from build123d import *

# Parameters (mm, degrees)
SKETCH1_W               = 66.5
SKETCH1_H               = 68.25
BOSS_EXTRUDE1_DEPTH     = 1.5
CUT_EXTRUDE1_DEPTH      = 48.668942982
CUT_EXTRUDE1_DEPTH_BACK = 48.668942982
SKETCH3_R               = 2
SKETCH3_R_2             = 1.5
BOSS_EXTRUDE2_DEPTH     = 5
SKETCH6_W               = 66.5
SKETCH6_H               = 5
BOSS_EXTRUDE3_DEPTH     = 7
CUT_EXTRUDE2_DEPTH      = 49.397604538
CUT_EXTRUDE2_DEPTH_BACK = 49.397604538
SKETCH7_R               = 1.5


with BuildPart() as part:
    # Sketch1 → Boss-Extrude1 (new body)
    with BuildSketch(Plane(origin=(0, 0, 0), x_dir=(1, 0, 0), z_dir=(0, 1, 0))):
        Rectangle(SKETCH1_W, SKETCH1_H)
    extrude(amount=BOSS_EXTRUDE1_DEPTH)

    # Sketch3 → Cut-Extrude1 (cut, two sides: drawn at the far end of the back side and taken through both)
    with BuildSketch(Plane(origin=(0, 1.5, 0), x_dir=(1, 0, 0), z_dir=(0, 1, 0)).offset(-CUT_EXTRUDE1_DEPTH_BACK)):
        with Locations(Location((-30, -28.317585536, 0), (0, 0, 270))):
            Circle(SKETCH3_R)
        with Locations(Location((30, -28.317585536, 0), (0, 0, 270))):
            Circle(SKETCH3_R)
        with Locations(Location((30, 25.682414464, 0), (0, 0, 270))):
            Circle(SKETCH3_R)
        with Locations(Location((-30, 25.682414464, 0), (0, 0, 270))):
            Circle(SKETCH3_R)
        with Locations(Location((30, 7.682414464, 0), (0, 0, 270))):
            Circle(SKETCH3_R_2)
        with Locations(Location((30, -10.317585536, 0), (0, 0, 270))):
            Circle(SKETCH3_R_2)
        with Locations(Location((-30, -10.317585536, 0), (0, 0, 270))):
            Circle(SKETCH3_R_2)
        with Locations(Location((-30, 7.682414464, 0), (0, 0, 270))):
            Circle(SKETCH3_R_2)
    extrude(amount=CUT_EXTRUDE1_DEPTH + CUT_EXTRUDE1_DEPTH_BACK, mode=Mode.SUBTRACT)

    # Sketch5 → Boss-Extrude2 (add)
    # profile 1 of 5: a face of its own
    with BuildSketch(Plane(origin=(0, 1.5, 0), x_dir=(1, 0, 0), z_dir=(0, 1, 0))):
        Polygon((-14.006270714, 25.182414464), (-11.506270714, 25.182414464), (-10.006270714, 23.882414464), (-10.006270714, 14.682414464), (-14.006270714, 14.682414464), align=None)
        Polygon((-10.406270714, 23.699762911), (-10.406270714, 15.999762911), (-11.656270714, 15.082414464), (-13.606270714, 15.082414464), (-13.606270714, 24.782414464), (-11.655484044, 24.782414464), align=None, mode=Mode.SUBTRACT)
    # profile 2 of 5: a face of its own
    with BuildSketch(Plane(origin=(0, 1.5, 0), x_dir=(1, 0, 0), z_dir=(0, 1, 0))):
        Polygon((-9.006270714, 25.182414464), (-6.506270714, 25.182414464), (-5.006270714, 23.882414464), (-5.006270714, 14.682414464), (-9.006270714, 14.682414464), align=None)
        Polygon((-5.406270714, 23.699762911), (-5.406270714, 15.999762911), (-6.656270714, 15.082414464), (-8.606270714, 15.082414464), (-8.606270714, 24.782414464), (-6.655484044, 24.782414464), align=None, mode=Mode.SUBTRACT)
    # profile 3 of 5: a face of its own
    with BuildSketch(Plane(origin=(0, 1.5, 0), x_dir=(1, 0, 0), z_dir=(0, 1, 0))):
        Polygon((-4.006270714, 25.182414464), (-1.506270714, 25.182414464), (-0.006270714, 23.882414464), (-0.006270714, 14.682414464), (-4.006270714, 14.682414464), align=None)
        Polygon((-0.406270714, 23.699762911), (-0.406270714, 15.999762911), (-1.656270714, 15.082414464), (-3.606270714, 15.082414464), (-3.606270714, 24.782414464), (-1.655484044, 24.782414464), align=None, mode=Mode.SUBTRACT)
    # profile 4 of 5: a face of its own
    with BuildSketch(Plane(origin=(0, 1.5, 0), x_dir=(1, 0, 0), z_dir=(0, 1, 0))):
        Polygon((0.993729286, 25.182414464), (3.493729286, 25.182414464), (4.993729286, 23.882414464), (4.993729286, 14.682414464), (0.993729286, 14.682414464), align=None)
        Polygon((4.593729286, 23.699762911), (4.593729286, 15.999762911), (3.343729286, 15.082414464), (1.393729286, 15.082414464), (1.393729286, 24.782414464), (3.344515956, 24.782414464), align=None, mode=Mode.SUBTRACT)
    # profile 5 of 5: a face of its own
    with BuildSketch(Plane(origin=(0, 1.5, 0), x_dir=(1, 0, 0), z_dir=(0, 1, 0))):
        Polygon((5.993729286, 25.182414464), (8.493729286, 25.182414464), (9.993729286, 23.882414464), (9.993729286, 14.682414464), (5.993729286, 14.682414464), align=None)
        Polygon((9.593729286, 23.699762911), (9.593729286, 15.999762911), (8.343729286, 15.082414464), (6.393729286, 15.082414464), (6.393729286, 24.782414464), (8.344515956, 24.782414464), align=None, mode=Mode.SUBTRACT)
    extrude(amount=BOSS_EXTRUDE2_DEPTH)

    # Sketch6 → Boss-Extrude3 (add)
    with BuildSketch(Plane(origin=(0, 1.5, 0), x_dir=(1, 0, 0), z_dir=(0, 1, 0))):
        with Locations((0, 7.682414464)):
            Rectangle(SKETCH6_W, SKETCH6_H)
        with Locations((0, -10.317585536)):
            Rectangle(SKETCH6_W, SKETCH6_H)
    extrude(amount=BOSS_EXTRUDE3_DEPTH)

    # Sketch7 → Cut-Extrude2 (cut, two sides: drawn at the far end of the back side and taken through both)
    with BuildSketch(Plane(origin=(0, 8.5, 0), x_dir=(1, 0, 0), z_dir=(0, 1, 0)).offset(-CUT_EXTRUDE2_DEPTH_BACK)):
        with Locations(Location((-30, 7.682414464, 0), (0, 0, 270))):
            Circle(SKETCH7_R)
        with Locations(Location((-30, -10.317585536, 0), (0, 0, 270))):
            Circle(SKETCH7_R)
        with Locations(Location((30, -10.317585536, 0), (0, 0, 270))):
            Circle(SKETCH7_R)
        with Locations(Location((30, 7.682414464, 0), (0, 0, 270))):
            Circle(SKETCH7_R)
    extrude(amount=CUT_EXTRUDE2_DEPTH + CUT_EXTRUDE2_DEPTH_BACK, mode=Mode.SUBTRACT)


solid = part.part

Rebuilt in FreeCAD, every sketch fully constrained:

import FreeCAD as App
import Part
import Sketcher
Q = App.Units.Quantity


def add_polygon(sketch, points):
    """Adds a closed chain of lines whose ends are joined by coincident constraints."""
    first, n = sketch.GeometryCount, len(points)
    for a, b in zip(points, points[1:] + points[:1]):
        sketch.addGeometry(Part.LineSegment(App.Vector(*a, 0), App.Vector(*b, 0)), False)
    for i in range(n):
        sketch.addConstraint(Sketcher.Constraint("Coincident", first + i, 2, first + (i + 1) % n, 1))

doc = App.newDocument("Part")
body = doc.addObject("PartDesign::Body", "Body")

# Sketch on XZ plane
sketch1 = body.newObject("Sketcher::SketchObject", "Sketch")
sketch1.AttachmentSupport = (doc.getObject("XZ_Plane"), [""])
sketch1.MapMode = "FlatFace"
add_polygon(sketch1, [(-33, -34), (-33, 34), (33, 34), (33, -34)])  # lines 0-3
sketch1.addConstraint([
    Sketcher.Constraint("Vertical", 0),
    Sketcher.Constraint("Horizontal", 1),
    Sketcher.Constraint("Vertical", 2),
    Sketcher.Constraint("Horizontal", 3),
    Sketcher.Constraint("Symmetric", 0, 2, 2, 2, -1, 1),
    Sketcher.Constraint("DistanceX", 1, 1, 1, 2, Q("66.5 mm")),
    Sketcher.Constraint("DistanceY", 0, 1, 0, 2, Q("68.25 mm")),
])
pad1 = body.newObject("PartDesign::Pad", "Pad")
pad1.Profile = sketch1
pad1.Length = 1.5
pad1.Reversed = True

# Sketch on XZ plane
sketch2 = body.newObject("Sketcher::SketchObject", "Sketch001")
sketch2.AttachmentSupport = (doc.getObject("XZ_Plane"), [""])
sketch2.MapMode = "FlatFace"
sketch2.AttachmentOffset = App.Placement(App.Vector(0, 0, -1.5), App.Rotation())
sketch2.addGeometry([
    Part.Circle(App.Vector(-30, 28.3, 0), App.Vector(0, 0, 1), 2),  # 0
    Part.Circle(App.Vector(30, 28.3, 0), App.Vector(0, 0, 1), 2),  # 1
    Part.Circle(App.Vector(30, -25.7, 0), App.Vector(0, 0, 1), 2),  # 2
    Part.Circle(App.Vector(-30, -25.7, 0), App.Vector(0, 0, 1), 2),  # 3
    Part.Circle(App.Vector(30, -7.7, 0), App.Vector(0, 0, 1), 1.5),  # 4
    Part.Circle(App.Vector(30, 10.3, 0), App.Vector(0, 0, 1), 1.5),  # 5
    Part.Circle(App.Vector(-30, 10.3, 0), App.Vector(0, 0, 1), 1.5),  # 6
    Part.Circle(App.Vector(-30, -7.7, 0), App.Vector(0, 0, 1), 1.5),  # 7
], False)
sketch2.addConstraint([
    Sketcher.Constraint("Equal", 0, 1),
    Sketcher.Constraint("Equal", 1, 2),
    Sketcher.Constraint("Equal", 2, 3),
    Sketcher.Constraint("Equal", 4, 5),
    Sketcher.Constraint("Equal", 5, 6),
    Sketcher.Constraint("Equal", 6, 7),
    Sketcher.Constraint("Symmetric", 0, 3, 1, 3, -2),
    Sketcher.Constraint("Symmetric", 2, 3, 3, 3, -2),
    Sketcher.Constraint("Symmetric", 5, 3, 6, 3, -2),
    Sketcher.Constraint("Symmetric", 4, 3, 7, 3, -2),
    Sketcher.Constraint("Vertical", 1, 3, 2, 3),
    Sketcher.Constraint("Vertical", 2, 3, 4, 3),
    Sketcher.Constraint("Vertical", 4, 3, 5, 3),
    Sketcher.Constraint("Diameter", 0, Q("4 mm")),
    Sketcher.Constraint("Diameter", 4, Q("3 mm")),
    Sketcher.Constraint("DistanceX", 0, 3, -1, 1, Q("30 mm")),
    Sketcher.Constraint("DistanceY", 2, 3, 1, 3, Q("54 mm")),
    Sketcher.Constraint("DistanceY", 2, 3, 4, 3, Q("18 mm")),
    Sketcher.Constraint("DistanceY", 5, 3, 1, 3, Q("18 mm")),
    Sketcher.Constraint("DistanceY", -1, 1, 0, 3, Q("28.317586 mm")),
])
pocket1 = body.newObject("PartDesign::Pocket", "Pocket")
pocket1.Profile = sketch2
pocket1.Type = "ThroughAll"
pocket1.Midplane = True

# Sketch on XZ plane
sketch3 = body.newObject("Sketcher::SketchObject", "Sketch002")
sketch3.AttachmentSupport = (doc.getObject("XZ_Plane"), [""])
sketch3.MapMode = "FlatFace"
sketch3.AttachmentOffset = App.Placement(App.Vector(0, 0, -1.5), App.Rotation())
add_polygon(sketch3, [(-11.5, -25.2), (-14, -25.2), (-14, -14.7), (-10, -14.7), (-10, -23.9)])  # lines 0-4
add_polygon(sketch3, [(-10.4, -23.7), (-10.4, -16), (-11.7, -15.1), (-13.6, -15.1), (-13.6, -24.8), (-11.7, -24.8)])  # lines 5-10
add_polygon(sketch3, [(-6.5, -25.2), (-9, -25.2), (-9, -14.7), (-5, -14.7), (-5, -23.9)])  # lines 11-15
add_polygon(sketch3, [(-5.4, -23.7), (-5.4, -16), (-6.7, -15.1), (-8.6, -15.1), (-8.6, -24.8), (-6.7, -24.8)])  # lines 16-21
add_polygon(sketch3, [(-1.5, -25.2), (-4, -25.2), (-4, -14.7), (0, -14.7), (0, -23.9)])  # lines 22-26
add_polygon(sketch3, [(-0.4, -23.7), (-0.4, -16), (-1.7, -15.1), (-3.6, -15.1), (-3.6, -24.8), (-1.7, -24.8)])  # lines 27-32
add_polygon(sketch3, [(3.5, -25.2), (1, -25.2), (1, -14.7), (5, -14.7), (5, -23.9)])  # lines 33-37
add_polygon(sketch3, [(4.6, -23.7), (4.6, -16), (3.3, -15.1), (1.4, -15.1), (1.4, -24.8), (3.3, -24.8)])  # lines 38-43
add_polygon(sketch3, [(8.5, -25.2), (6, -25.2), (6, -14.7), (10, -14.7), (10, -23.9)])  # lines 44-48
add_polygon(sketch3, [(9.6, -23.7), (9.6, -16), (8.3, -15.1), (6.4, -15.1), (6.4, -24.8), (8.3, -24.8)])  # lines 49-54
sketch3.addConstraint([
    Sketcher.Constraint("Horizontal", 0),
    Sketcher.Constraint("Vertical", 1),
    Sketcher.Constraint("Horizontal", 2),
    Sketcher.Constraint("Vertical", 3),
    Sketcher.Constraint("Vertical", 5),
    Sketcher.Constraint("Horizontal", 7),
    Sketcher.Constraint("Vertical", 8),
    Sketcher.Constraint("Horizontal", 9),
    Sketcher.Constraint("Horizontal", 11),
    Sketcher.Constraint("Vertical", 12),
    Sketcher.Constraint("Horizontal", 13),
    Sketcher.Constraint("Vertical", 14),
    Sketcher.Constraint("Vertical", 16),
    Sketcher.Constraint("Horizontal", 18),
    Sketcher.Constraint("Vertical", 19),
    Sketcher.Constraint("Horizontal", 20),
    Sketcher.Constraint("Horizontal", 22),
    Sketcher.Constraint("Vertical", 23),
    Sketcher.Constraint("Horizontal", 24),
    Sketcher.Constraint("Vertical", 25),
    Sketcher.Constraint("Vertical", 27),
    Sketcher.Constraint("Horizontal", 29),
    Sketcher.Constraint("Vertical", 30),
    Sketcher.Constraint("Horizontal", 31),
    Sketcher.Constraint("Horizontal", 33),
    Sketcher.Constraint("Vertical", 34),
    Sketcher.Constraint("Horizontal", 35),
    Sketcher.Constraint("Vertical", 36),
    Sketcher.Constraint("Vertical", 38),
    Sketcher.Constraint("Horizontal", 40),
    Sketcher.Constraint("Vertical", 41),
    Sketcher.Constraint("Horizontal", 42),
    Sketcher.Constraint("Horizontal", 44),
    Sketcher.Constraint("Vertical", 45),
    Sketcher.Constraint("Horizontal", 46),
    Sketcher.Constraint("Vertical", 47),
    Sketcher.Constraint("Vertical", 49),
    Sketcher.Constraint("Horizontal", 51),
    Sketcher.Constraint("Vertical", 52),
    Sketcher.Constraint("Horizontal", 53),
    Sketcher.Constraint("Parallel", 4, 10),
    Sketcher.Constraint("Parallel", 10, 15),
    Sketcher.Constraint("Parallel", 6, 17),
    Sketcher.Constraint("Parallel", 15, 21),
    Sketcher.Constraint("Parallel", 21, 26),
    Sketcher.Constraint("Parallel", 17, 28),
    Sketcher.Constraint("Parallel", 26, 32),
    Sketcher.Constraint("Parallel", 32, 37),
    Sketcher.Constraint("Parallel", 28, 39),
    Sketcher.Constraint("Parallel", 37, 43),
    Sketcher.Constraint("Parallel", 43, 48),
    Sketcher.Constraint("Parallel", 39, 50),
    Sketcher.Constraint("Parallel", 48, 54),
    Sketcher.Constraint("Horizontal", 4, 2, 11, 2),
    Sketcher.Constraint("Horizontal", 2, 2, 12, 2),
    Sketcher.Constraint("Horizontal", 3, 2, 14, 2),
    Sketcher.Constraint("Horizontal", 5, 2, 16, 2),
    Sketcher.Constraint("Horizontal", 7, 2, 17, 2),
    Sketcher.Constraint("Horizontal", 9, 2, 19, 2),
    Sketcher.Constraint("Horizontal", 10, 2, 21, 2),
    Sketcher.Constraint("Horizontal", 15, 2, 22, 2),
    Sketcher.Constraint("Horizontal", 13, 2, 23, 2),
    Sketcher.Constraint("Horizontal", 14, 2, 25, 2),
    Sketcher.Constraint("Horizontal", 16, 2, 27, 2),
    Sketcher.Constraint("Horizontal", 18, 2, 28, 2),
    Sketcher.Constraint("Horizontal", 20, 2, 30, 2),
    Sketcher.Constraint("Horizontal", 21, 2, 32, 2),
    Sketcher.Constraint("Horizontal", 26, 2, 33, 2),
    Sketcher.Constraint("Horizontal", 24, 2, 34, 2),
    Sketcher.Constraint("Horizontal", 25, 2, 36, 2),
    Sketcher.Constraint("Horizontal", 27, 2, 38, 2),
    Sketcher.Constraint("Horizontal", 29, 2, 39, 2),
    Sketcher.Constraint("Horizontal", 31, 2, 41, 2),
    Sketcher.Constraint("Horizontal", 32, 2, 43, 2),
    Sketcher.Constraint("Horizontal", 37, 2, 44, 2),
    Sketcher.Constraint("Horizontal", 35, 2, 45, 2),
    Sketcher.Constraint("Horizontal", 36, 2, 47, 2),
    Sketcher.Constraint("Horizontal", 38, 2, 49, 2),
    Sketcher.Constraint("Horizontal", 40, 2, 50, 2),
    Sketcher.Constraint("Horizontal", 42, 2, 52, 2),
    Sketcher.Constraint("Horizontal", 43, 2, 54, 2),
    Sketcher.Constraint("Equal", 0, 11),
    Sketcher.Constraint("Equal", 7, 18),
    Sketcher.Constraint("Equal", 11, 22),
    Sketcher.Constraint("Equal", 18, 29),
    Sketcher.Constraint("Equal", 22, 33),
    Sketcher.Constraint("Equal", 29, 40),
    Sketcher.Constraint("Equal", 33, 44),
    Sketcher.Constraint("Equal", 40, 51),
    Sketcher.Constraint("DistanceX", 2, 1, 2, 2, Q("4 mm")),
    Sketcher.Constraint("DistanceX", 0, 2, 0, 1, Q("2.5 mm")),
    Sketcher.Constraint("DistanceY", 1, 1, 1, 2, Q("10.5 mm")),
    Sketcher.Constraint("DistanceY", 3, 2, 3, 1, Q("9.2 mm")),
    Sketcher.Constraint("DistanceY", 5, 1, 5, 2, Q("7.7 mm")),
    Sketcher.Constraint("DistanceY", 8, 2, 8, 1, Q("9.7 mm")),
    Sketcher.Constraint("DistanceX", 3, 2, 11, 2, Q("1 mm")),
    Sketcher.Constraint("DistanceX", 5, 2, 16, 2, Q("5 mm")),
    Sketcher.Constraint("DistanceX", 14, 2, 22, 2, Q("1 mm")),
    Sketcher.Constraint("DistanceX", 16, 2, 27, 2, Q("5 mm")),
    Sketcher.Constraint("DistanceX", 25, 2, 33, 2, Q("1 mm")),
    Sketcher.Constraint("DistanceX", 27, 2, 38, 2, Q("5 mm")),
    Sketcher.Constraint("DistanceX", 36, 2, 44, 2, Q("1 mm")),
    Sketcher.Constraint("DistanceX", 38, 2, 49, 2, Q("5 mm")),
    Sketcher.Constraint("DistanceX", 7, 2, 7, 1, Q("1.95 mm")),
    Sketcher.Constraint("DistanceX", 5, 2, 2, 2, Q("0.4 mm")),
    Sketcher.Constraint("DistanceY", 6, 2, 2, 2, Q("0.4 mm")),
    Sketcher.Constraint("DistanceX", 1, 2, 7, 2, Q("0.4 mm")),
    Sketcher.Constraint("Distance", 10, Q("1.653078 mm")),
    Sketcher.Constraint("DistanceX", 0, 2, -1, 1, Q("14.006271 mm")),
    Sketcher.Constraint("DistanceY", 0, 2, -1, 1, Q("25.182414 mm")),
])
pad2 = body.newObject("PartDesign::Pad", "Pad001")
pad2.Profile = sketch3
pad2.Length = 5
pad2.Reversed = True

# Sketch on XZ plane
sketch4 = body.newObject("Sketcher::SketchObject", "Sketch003")
sketch4.AttachmentSupport = (doc.getObject("XZ_Plane"), [""])
sketch4.MapMode = "FlatFace"
sketch4.AttachmentOffset = App.Placement(App.Vector(0, 0, -1.5), App.Rotation())
add_polygon(sketch4, [(-33.2, -10.2), (-33.2, -5.2), (33.2, -5.2), (33.2, -10.2)])  # lines 0-3
add_polygon(sketch4, [(-33.2, 7.8), (-33.2, 12.8), (33.2, 12.8), (33.2, 7.8)])  # lines 4-7
sketch4.addConstraint([
    Sketcher.Constraint("Vertical", 0),
    Sketcher.Constraint("Horizontal", 1),
    Sketcher.Constraint("Vertical", 2),
    Sketcher.Constraint("Horizontal", 3),
    Sketcher.Constraint("Vertical", 4),
    Sketcher.Constraint("Horizontal", 5),
    Sketcher.Constraint("Vertical", 6),
    Sketcher.Constraint("Horizontal", 7),
    Sketcher.Constraint("Vertical", 3, 2, 4, 2),
    Sketcher.Constraint("Vertical", 2, 2, 5, 2),
    Sketcher.Constraint("Equal", 2, 4),
    Sketcher.Constraint("DistanceY", 0, 1, 0, 2, Q("5 mm")),
    Sketcher.Constraint("DistanceX", 1, 1, 1, 2, Q("66.5 mm")),
    Sketcher.Constraint("DistanceY", 0, 2, 4, 2, Q("18 mm")),
    Sketcher.Constraint("DistanceX", 0, 2, -1, 1, Q("33.25 mm")),
    Sketcher.Constraint("DistanceY", 0, 2, -1, 1, Q("5.182414 mm")),
])
pad3 = body.newObject("PartDesign::Pad", "Pad002")
pad3.Profile = sketch4
pad3.Length = 7
pad3.Reversed = True

# Sketch on XZ plane
sketch5 = body.newObject("Sketcher::SketchObject", "Sketch004")
sketch5.AttachmentSupport = (doc.getObject("XZ_Plane"), [""])
sketch5.MapMode = "FlatFace"
sketch5.AttachmentOffset = App.Placement(App.Vector(0, 0, -8.5), App.Rotation())
sketch5.addGeometry([
    Part.Circle(App.Vector(-30, -7.7, 0), App.Vector(0, 0, 1), 1.5),
    Part.Circle(App.Vector(-30, 10.3, 0), App.Vector(0, 0, 1), 1.5),
    Part.Circle(App.Vector(30, 10.3, 0), App.Vector(0, 0, 1), 1.5),
    Part.Circle(App.Vector(30, -7.7, 0), App.Vector(0, 0, 1), 1.5),
], False)
sketch5.addConstraint([
    Sketcher.Constraint("Equal", 0, 1),
    Sketcher.Constraint("Equal", 1, 2),
    Sketcher.Constraint("Equal", 2, 3),
    Sketcher.Constraint("Symmetric", 1, 3, 2, 3, -2),
    Sketcher.Constraint("Symmetric", 0, 3, 3, 3, -2),
    Sketcher.Constraint("Vertical", 0, 3, 1, 3),
    Sketcher.Constraint("Diameter", 0, Q("3 mm")),
    Sketcher.Constraint("DistanceX", 0, 3, -1, 1, Q("30 mm")),
    Sketcher.Constraint("DistanceY", 0, 3, 1, 3, Q("18 mm")),
    Sketcher.Constraint("DistanceY", 0, 3, -1, 1, Q("7.682414 mm")),
])
pocket2 = body.newObject("PartDesign::Pocket", "Pocket001")
pocket2.Profile = sketch5
pocket2.Type = "ThroughAll"
pocket2.Midplane = True

doc.recompute()
